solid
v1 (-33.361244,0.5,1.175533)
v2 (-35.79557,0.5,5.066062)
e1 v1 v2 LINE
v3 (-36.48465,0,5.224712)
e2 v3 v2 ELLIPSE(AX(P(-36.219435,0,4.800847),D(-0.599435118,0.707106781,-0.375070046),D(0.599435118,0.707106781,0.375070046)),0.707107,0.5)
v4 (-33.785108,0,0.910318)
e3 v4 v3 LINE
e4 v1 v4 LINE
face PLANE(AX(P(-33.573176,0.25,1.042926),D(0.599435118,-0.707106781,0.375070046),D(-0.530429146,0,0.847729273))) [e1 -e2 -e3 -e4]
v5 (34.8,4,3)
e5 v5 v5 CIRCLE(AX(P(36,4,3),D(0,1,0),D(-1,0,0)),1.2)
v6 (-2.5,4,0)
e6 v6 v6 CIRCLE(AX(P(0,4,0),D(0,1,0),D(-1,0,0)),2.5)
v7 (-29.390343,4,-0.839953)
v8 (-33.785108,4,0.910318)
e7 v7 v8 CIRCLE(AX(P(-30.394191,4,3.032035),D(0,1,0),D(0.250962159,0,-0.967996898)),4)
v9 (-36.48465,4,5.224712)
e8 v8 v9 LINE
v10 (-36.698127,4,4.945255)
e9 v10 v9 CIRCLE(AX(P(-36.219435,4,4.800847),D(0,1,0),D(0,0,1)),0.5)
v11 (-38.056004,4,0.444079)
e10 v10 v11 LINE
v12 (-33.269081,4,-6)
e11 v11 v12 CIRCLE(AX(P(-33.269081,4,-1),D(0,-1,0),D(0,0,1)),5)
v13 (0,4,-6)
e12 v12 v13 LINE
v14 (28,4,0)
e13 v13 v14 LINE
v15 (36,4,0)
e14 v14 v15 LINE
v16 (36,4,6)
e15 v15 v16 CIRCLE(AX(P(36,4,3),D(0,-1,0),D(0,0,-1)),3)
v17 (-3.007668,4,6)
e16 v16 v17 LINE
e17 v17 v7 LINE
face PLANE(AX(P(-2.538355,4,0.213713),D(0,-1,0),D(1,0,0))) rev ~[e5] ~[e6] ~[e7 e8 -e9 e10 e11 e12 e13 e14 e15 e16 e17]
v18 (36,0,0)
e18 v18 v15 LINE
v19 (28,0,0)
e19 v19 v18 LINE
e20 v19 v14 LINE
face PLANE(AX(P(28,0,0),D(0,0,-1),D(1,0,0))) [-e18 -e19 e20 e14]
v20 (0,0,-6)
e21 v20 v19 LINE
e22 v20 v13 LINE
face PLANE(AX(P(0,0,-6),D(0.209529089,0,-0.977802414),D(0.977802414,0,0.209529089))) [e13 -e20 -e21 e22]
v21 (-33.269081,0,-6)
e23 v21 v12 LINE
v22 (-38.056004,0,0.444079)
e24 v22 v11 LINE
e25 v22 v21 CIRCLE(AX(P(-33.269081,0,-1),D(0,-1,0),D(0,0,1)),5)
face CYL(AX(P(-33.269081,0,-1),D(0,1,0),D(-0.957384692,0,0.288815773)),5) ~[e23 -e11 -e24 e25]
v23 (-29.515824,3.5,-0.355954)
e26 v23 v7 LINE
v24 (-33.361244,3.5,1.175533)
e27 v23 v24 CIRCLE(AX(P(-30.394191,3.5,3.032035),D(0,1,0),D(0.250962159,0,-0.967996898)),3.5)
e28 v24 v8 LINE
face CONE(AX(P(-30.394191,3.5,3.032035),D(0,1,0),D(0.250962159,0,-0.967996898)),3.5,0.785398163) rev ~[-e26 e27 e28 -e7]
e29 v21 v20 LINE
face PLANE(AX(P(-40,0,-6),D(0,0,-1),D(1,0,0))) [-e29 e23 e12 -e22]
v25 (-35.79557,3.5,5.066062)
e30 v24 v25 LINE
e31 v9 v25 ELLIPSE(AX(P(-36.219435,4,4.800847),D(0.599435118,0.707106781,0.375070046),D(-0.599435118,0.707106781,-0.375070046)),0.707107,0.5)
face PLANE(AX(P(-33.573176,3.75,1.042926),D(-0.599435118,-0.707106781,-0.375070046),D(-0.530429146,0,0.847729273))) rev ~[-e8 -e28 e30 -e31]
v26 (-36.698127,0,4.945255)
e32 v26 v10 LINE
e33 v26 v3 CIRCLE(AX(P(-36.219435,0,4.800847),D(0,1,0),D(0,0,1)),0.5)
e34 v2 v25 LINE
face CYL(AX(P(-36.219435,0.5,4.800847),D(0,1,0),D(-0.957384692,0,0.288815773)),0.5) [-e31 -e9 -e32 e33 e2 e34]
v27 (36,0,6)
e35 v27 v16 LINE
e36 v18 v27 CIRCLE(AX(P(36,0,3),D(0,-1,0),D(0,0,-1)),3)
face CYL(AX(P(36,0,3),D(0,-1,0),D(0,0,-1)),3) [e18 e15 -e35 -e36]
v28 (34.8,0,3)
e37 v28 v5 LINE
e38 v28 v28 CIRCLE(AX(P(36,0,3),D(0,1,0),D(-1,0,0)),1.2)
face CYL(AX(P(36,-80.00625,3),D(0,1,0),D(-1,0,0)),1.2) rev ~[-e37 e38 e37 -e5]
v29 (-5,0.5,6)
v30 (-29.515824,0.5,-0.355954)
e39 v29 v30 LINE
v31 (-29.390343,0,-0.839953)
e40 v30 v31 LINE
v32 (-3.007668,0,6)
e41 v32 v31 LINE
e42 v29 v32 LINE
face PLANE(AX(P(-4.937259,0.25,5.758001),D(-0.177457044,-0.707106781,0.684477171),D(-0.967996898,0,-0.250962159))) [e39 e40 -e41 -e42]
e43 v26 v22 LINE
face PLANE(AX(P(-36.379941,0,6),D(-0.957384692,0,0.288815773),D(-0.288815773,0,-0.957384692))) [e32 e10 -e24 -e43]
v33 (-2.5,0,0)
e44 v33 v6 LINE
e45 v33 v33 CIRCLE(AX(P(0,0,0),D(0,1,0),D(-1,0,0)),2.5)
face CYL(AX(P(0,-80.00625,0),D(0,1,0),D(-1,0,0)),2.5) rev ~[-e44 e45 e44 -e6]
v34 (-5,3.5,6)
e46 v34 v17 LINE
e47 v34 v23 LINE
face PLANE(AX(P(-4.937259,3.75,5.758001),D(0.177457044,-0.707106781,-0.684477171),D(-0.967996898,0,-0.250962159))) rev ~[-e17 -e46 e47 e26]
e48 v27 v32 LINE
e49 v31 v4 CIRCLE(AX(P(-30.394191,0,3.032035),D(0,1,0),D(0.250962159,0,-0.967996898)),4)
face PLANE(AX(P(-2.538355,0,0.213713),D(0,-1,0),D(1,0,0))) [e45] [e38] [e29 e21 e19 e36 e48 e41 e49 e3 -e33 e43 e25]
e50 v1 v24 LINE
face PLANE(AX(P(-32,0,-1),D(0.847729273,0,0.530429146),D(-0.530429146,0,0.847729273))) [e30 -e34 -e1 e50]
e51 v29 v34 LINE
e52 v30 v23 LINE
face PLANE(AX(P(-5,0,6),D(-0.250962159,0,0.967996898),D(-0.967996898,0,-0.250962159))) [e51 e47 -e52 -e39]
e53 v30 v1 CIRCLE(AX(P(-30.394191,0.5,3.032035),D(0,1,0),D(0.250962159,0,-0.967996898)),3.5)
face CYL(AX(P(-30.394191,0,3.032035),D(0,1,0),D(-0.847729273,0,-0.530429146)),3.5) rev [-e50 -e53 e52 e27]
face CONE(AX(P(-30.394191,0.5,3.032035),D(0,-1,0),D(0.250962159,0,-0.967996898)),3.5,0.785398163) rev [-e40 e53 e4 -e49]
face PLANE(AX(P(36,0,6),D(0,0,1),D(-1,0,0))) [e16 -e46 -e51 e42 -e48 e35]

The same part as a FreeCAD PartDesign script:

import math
import FreeCAD as App
import Part
import Sketcher
Q = App.Units.Quantity


def edges_at(feature, points):
    """Names of the edges that pass closest to the given points."""
    edges = feature.Shape.Edges
    near = lambda p: min(range(len(edges)), key=lambda i: edges[i].distToShape(Part.Vertex(*p))[0])
    return sorted({f"Edge{near(p) + 1}" for p in points})

doc = App.newDocument("Part")
params = doc.addObject("Spreadsheet::Sheet", "Params")
for row, (alias, value) in enumerate([
    ("sketch1_radius", "3 mm"),
    ("sketch1_width", "40 mm"),
    ("sketch1_width2", "8 mm"),
    ("sketch1_width3", "41 mm"),
    ("pad1_length", "4 mm"),
    ("sketch2_diameter", "5 mm"),
    ("hole_diameter", "5 mm"),
    ("fillet_radius", "3.5 mm"),
    ("sketch3_diameter", "2.4 mm"),
    ("hole2_diameter", "2.4 mm"),
    ("chamfer_size", "0.5 mm"),
    ("fillet2_radius", "5 mm"),
    ("fillet3_radius", "0.5 mm"),
], start=1):
    params.set(f"A{row}", alias)
    params.set(f"B{row}", "=" + value)
    params.setAlias(f"B{row}", alias)

body = doc.addObject("PartDesign::Body", "Body")

# Sketch on XZ plane
sketch1 = body.newObject("Sketcher::SketchObject", "Sketch")
sketch1.AttachmentSupport = (doc.getObject("XZ_Plane"), [""])
sketch1.MapMode = "FlatFace"
sketch1.addGeometry(Part.LineSegment(App.Vector(-36.4, 6, 0), App.Vector(-40, -6, 0)), False)
sketch1.addGeometry(Part.LineSegment(App.Vector(-40, -6, 0), App.Vector(0, -6, 0)), False)
sketch1.addGeometry(Part.LineSegment(App.Vector(0, -6, 0), App.Vector(28, 0, 0)), False)
sketch1.addGeometry(Part.LineSegment(App.Vector(28, 0, 0), App.Vector(36, 0, 0)), False)
sketch1.addGeometry(Part.ArcOfCircle(Part.Circle(App.Vector(36, 3, 0), App.Vector(0, 0, 1), 3), math.radians(-90), math.radians(90)), False)
sketch1.addGeometry(Part.LineSegment(App.Vector(36, 6, 0), App.Vector(-5, 6, 0)), False)
sketch1.addGeometry(Part.LineSegment(App.Vector(-5, 6, 0), App.Vector(-32, -1, 0)), False)
sketch1.addGeometry(Part.LineSegment(App.Vector(-32, -1, 0), App.Vector(-36.4, 6, 0)), False)
sketch1.addConstraint(Sketcher.Constraint("Coincident", 0, 2, 1, 1))
sketch1.addConstraint(Sketcher.Constraint("Coincident", 1, 2, 2, 1))
sketch1.addConstraint(Sketcher.Constraint("Coincident", 2, 2, 3, 1))
sketch1.addConstraint(Sketcher.Constraint("Tangent", 3, 2, 4, 1))
sketch1.addConstraint(Sketcher.Constraint("Tangent", 4, 2, 5, 1))
sketch1.addConstraint(Sketcher.Constraint("Coincident", 5, 2, 6, 1))
sketch1.addConstraint(Sketcher.Constraint("Coincident", 6, 2, 7, 1))
sketch1.addConstraint(Sketcher.Constraint("Coincident", 7, 2, 0, 1))
sketch1.addConstraint(Sketcher.Constraint("Horizontal", 1))
sketch1.addConstraint(Sketcher.Constraint("Horizontal", 3))
sketch1.addConstraint(Sketcher.Constraint("Horizontal", 5))
sketch1.addConstraint(Sketcher.Constraint("PointOnObject", 1, 2, -2))
sketch1.addConstraint(Sketcher.Constraint("PointOnObject", 2, 2, -1))
sketch1.addConstraint(Sketcher.Constraint("Horizontal", 5, 2, 7, 2))
sketch1.addConstraint(Sketcher.Constraint("Radius", 4, Q("3 mm")))
sketch1.addConstraint(Sketcher.Constraint("DistanceX", 1, 1, 1, 2, Q("40 mm")))
sketch1.addConstraint(Sketcher.Constraint("DistanceX", 3, 1, 3, 2, Q("8 mm")))
sketch1.addConstraint(Sketcher.Constraint("DistanceX", 5, 2, 5, 1, Q("41 mm")))
sketch1.addConstraint(Sketcher.Constraint("DistanceX", -1, 1, 4, 3, Q("36 mm")))
sketch1.addConstraint(Sketcher.Constraint("DistanceY", 0, 2, -1, 1, Q("6 mm")))
sketch1.addConstraint(Sketcher.Constraint("DistanceX", 6, 2, -1, 1, Q("32 mm")))
sketch1.addConstraint(Sketcher.Constraint("DistanceY", 6, 2, -1, 1, Q("1 mm")))
sketch1.addConstraint(Sketcher.Constraint("DistanceX", 7, 2, -1, 1, Q("36.379941 mm")))
sketch1.setExpression("Constraints[14]", "Params.sketch1_radius")
sketch1.setExpression("Constraints[15]", "Params.sketch1_width")
sketch1.setExpression("Constraints[16]", "Params.sketch1_width2")
sketch1.setExpression("Constraints[17]", "Params.sketch1_width3")
pad1 = body.newObject("PartDesign::Pad", "Pad")
pad1.Profile = sketch1
pad1.setExpression("Length", "Params.pad1_length")
pad1.Reversed = True

# Sketch on XZ plane
sketch2 = body.newObject("Sketcher::SketchObject", "Sketch001")
sketch2.AttachmentSupport = (doc.getObject("XZ_Plane"), [""])
sketch2.MapMode = "FlatFace"
sketch2.addGeometry(Part.Circle(App.Vector(0, 0, 0), App.Vector(0, 0, 1), 2.5), False)
sketch2.addConstraint(Sketcher.Constraint("Coincident", 0, 3, -1, 1))
sketch2.addConstraint(Sketcher.Constraint("Diameter", 0, Q("5 mm")))
sketch2.setExpression("Constraints[1]", "Params.sketch2_diameter")
doc.recompute()
hole = body.newObject("PartDesign::Hole", "Hole")
hole.Profile = sketch2
hole.ThreadType = "None"
hole.setExpression("Diameter", "Params.hole_diameter")
hole.DepthType = "ThroughAll"
doc.recompute()

fillet = body.newObject("PartDesign::Fillet", "Fillet")
fillet.Base = (hole, edges_at(hole, [(-32, 2, -1)]))
fillet.setExpression("Radius", "Params.fillet_radius")

# Sketch on XZ plane
sketch3 = body.newObject("Sketcher::SketchObject", "Sketch002")
sketch3.AttachmentSupport = (doc.getObject("XZ_Plane"), [""])
sketch3.MapMode = "FlatFace"
sketch3.addGeometry(Part.Circle(App.Vector(36, 3, 0), App.Vector(0, 0, 1), 1.2), False)
sketch3.addConstraint(Sketcher.Constraint("Diameter", 0, Q("2.4 mm")))
sketch3.addConstraint(Sketcher.Constraint("DistanceX", -1, 1, 0, 3, Q("36 mm")))
sketch3.addConstraint(Sketcher.Constraint("DistanceY", -1, 1, 0, 3, Q("3 mm")))
sketch3.setExpression("Constraints[0]", "Params.sketch3_diameter")
doc.recompute()
hole2 = body.newObject("PartDesign::Hole", "Hole001")
hole2.Profile = sketch3
hole2.ThreadType = "None"
hole2.setExpression("Diameter", "Params.hole2_diameter")
hole2.DepthType = "ThroughAll"
doc.recompute()

chamfer = body.newObject("PartDesign::Chamfer", "Chamfer")
chamfer.Base = (hole2, edges_at(hole2, [(-34.871, 0, 3.588), (-34.871, 4, 3.588)]))
chamfer.setExpression("Size", "Params.chamfer_size")
doc.recompute()

fillet2 = body.newObject("PartDesign::Fillet", "Fillet001")
fillet2.Base = (chamfer, edges_at(chamfer, [(-40, 2, -6)]))
fillet2.setExpression("Radius", "Params.fillet2_radius")
doc.recompute()

fillet3 = body.newObject("PartDesign::Fillet", "Fillet002")
fillet3.Base = (fillet2, edges_at(fillet2, [(-36.38, 2, 6)]))
fillet3.setExpression("Radius", "Params.fillet3_radius")

doc.recompute()
